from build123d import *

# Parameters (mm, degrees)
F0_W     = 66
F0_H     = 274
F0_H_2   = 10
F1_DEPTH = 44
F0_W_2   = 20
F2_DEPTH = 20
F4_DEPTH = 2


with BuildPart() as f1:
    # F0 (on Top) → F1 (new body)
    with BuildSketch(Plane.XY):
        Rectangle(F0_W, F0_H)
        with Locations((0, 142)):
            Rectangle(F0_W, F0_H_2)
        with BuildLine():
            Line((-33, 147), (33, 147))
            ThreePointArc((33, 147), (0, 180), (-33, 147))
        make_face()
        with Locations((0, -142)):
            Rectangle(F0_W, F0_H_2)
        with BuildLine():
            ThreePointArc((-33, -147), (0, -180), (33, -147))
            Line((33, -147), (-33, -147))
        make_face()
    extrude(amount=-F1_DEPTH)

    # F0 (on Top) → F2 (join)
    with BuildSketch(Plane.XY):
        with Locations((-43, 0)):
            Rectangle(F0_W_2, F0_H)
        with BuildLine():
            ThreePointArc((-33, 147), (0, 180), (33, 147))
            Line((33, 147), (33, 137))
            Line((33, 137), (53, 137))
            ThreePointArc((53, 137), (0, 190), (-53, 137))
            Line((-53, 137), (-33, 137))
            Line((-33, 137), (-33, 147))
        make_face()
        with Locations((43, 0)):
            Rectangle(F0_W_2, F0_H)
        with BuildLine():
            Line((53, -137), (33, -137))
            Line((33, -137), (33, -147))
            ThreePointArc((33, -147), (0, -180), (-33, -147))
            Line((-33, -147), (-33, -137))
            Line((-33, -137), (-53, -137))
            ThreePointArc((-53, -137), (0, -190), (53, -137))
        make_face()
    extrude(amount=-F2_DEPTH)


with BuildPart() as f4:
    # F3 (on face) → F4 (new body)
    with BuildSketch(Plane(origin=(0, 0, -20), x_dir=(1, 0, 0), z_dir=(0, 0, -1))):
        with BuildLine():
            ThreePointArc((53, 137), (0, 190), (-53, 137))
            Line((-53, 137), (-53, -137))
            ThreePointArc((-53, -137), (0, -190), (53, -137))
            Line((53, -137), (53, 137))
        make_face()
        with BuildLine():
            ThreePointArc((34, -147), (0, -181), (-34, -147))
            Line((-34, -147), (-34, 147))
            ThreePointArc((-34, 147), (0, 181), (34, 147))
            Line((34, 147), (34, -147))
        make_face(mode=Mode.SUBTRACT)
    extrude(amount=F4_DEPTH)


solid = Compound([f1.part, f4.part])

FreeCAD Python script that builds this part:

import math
import FreeCAD as App
import Part
import Sketcher

V = App.Vector
Q = App.Units.Quantity

doc = App.newDocument("Part")
body = doc.addObject("PartDesign::Body", "Body")

sketch1 = doc.addObject("Sketcher::SketchObject", "Sketch")
body.addObject(sketch1)
sketch1.AttachmentSupport = (doc.XY_Plane, [""])
sketch1.MapMode = "FlatFace"
sketch1.addGeometry([
    Part.ArcOfCircle(Part.Circle(V(0, 147, 0), V(0, 0, 1), 33), math.radians(0), math.radians(180)),
    Part.LineSegment(V(-33, 147, 0), V(-33, -147, 0)),
    Part.ArcOfCircle(Part.Circle(V(0, -147, 0), V(0, 0, 1), 33), math.radians(180), math.radians(360)),
    Part.LineSegment(V(33, -147, 0), V(33, 147, 0)),
], False)
sketch1.addConstraint([
    Sketcher.Constraint("Tangent", 0, 2, 1, 1),
    Sketcher.Constraint("Tangent", 1, 2, 2, 1),
    Sketcher.Constraint("Tangent", 2, 2, 3, 1),
    Sketcher.Constraint("Tangent", 3, 2, 0, 1),
    Sketcher.Constraint("Vertical", 1),
    Sketcher.Constraint("Vertical", 3),
    Sketcher.Constraint("Symmetric", 0, 3, 2, 3, -1, 1),
    Sketcher.Constraint("Radius", 0, Q("33 mm")),
    Sketcher.Constraint("DistanceY", 1, 2, 1, 1, Q("294 mm")),
])
pad1 = doc.addObject("PartDesign::Pad", "Pad")
body.addObject(pad1)
pad1.Profile = sketch1
pad1.Length = 44
pad1.Reversed = True

sketch2 = doc.addObject("Sketcher::SketchObject", "Sketch001")
body.addObject(sketch2)
sketch2.AttachmentSupport = (doc.XY_Plane, [""])
sketch2.MapMode = "FlatFace"
sketch2.addGeometry([
    Part.LineSegment(V(-53, 137, 0), V(-53, -137, 0)),
    Part.ArcOfCircle(Part.Circle(V(0, -137, 0), V(0, 0, 1), 53), math.radians(180), math.radians(360)),
    Part.LineSegment(V(53, -137, 0), V(53, 137, 0)),
    Part.ArcOfCircle(Part.Circle(V(0, 137, 0), V(0, 0, 1), 53), math.radians(0), math.radians(180)),
    Part.ArcOfCircle(Part.Circle(V(0, 147, 0), V(0, 0, 1), 33), math.radians(0), math.radians(180)),
    Part.LineSegment(V(33, 147, 0), V(33, -147, 0)),
    Part.ArcOfCircle(Part.Circle(V(0, -147, 0), V(0, 0, 1), 33), math.radians(180), math.radians(360)),
    Part.LineSegment(V(-33, -147, 0), V(-33, 147, 0)),
], False)
sketch2.addConstraint([
    Sketcher.Constraint("Tangent", 0, 2, 1, 1),
    Sketcher.Constraint("Tangent", 1, 2, 2, 1),
    Sketcher.Constraint("Tangent", 2, 2, 3, 1),
    Sketcher.Constraint("Tangent", 3, 2, 0, 1),
    Sketcher.Constraint("Tangent", 4, 1, 5, 1),
    Sketcher.Constraint("Tangent", 5, 2, 6, 2),
    Sketcher.Constraint("Tangent", 6, 1, 7, 1),
    Sketcher.Constraint("Tangent", 7, 2, 4, 2),
    Sketcher.Constraint("Vertical", 0),
    Sketcher.Constraint("Vertical", 2),
    Sketcher.Constraint("Vertical", 5),
    Sketcher.Constraint("Vertical", 7),
    Sketcher.Constraint("Symmetric", 1, 3, 3, 3, -1, 1),
    Sketcher.Constraint("Symmetric", 4, 3, 6, 3, -1, 1),
    Sketcher.Constraint("Radius", 1, Q("53 mm")),
    Sketcher.Constraint("Radius", 4, Q("33 mm")),
    Sketcher.Constraint("DistanceY", 0, 2, 0, 1, Q("274 mm")),
    Sketcher.Constraint("DistanceY", 5, 2, 5, 1, Q("294 mm")),
])
pad2 = doc.addObject("PartDesign::Pad", "Pad001")
body.addObject(pad2)
pad2.Profile = sketch2
pad2.Length = 20
pad2.Reversed = True
body2 = doc.addObject("PartDesign::Body", "Body001")

sketch3 = doc.addObject("Sketcher::SketchObject", "Sketch002")
body2.addObject(sketch3)
sketch3.AttachmentSupport = (doc.getObject("XY_Plane001"), [""])
sketch3.MapMode = "FlatFace"
sketch3.AttachmentOffset = App.Placement(V(0, 0, -20), App.Rotation())
sketch3.addGeometry([
    Part.ArcOfCircle(Part.Circle(V(0, -137, 0), V(0, 0, 1), 53), math.radians(180), math.radians(360)),
    Part.LineSegment(V(-53, -137, 0), V(-53, 137, 0)),
    Part.ArcOfCircle(Part.Circle(V(0, 137, 0), V(0, 0, 1), 53), math.radians(0), math.radians(180)),
    Part.LineSegment(V(53, 137, 0), V(53, -137, 0)),
    Part.LineSegment(V(34, -147, 0), V(34, 147, 0)),
    Part.ArcOfCircle(Part.Circle(V(0, 147, 0), V(0, 0, 1), 34), math.radians(0), math.radians(180)),
    Part.LineSegment(V(-34, 147, 0), V(-34, -147, 0)),
    Part.ArcOfCircle(Part.Circle(V(0, -147, 0), V(0, 0, 1), 34), math.radians(180), math.radians(360)),
], False)
sketch3.addConstraint([
    Sketcher.Constraint("Tangent", 0, 1, 1, 1),
    Sketcher.Constraint("Tangent", 1, 2, 2, 2),
    Sketcher.Constraint("Tangent", 2, 1, 3, 1),
    Sketcher.Constraint("Tangent", 3, 2, 0, 2),
    Sketcher.Constraint("Tangent", 4, 2, 5, 1),
    Sketcher.Constraint("Tangent", 5, 2, 6, 1),
    Sketcher.Constraint("Tangent", 6, 2, 7, 1),
    Sketcher.Constraint("Tangent", 7, 2, 4, 1),
    Sketcher.Constraint("Vertical", 1),
    Sketcher.Constraint("Vertical", 3),
    Sketcher.Constraint("Vertical", 4),
    Sketcher.Constraint("Vertical", 6),
    Sketcher.Constraint("Symmetric", 0, 3, 2, 3, -1, 1),
    Sketcher.Constraint("Symmetric", 5, 3, 7, 3, -1, 1),
    Sketcher.Constraint("Radius", 0, Q("53 mm")),
    Sketcher.Constraint("Radius", 5, Q("34 mm")),
    Sketcher.Constraint("DistanceY", 1, 1, 1, 2, Q("274 mm")),
    Sketcher.Constraint("DistanceY", 4, 1, 4, 2, Q("294 mm")),
])
pad3 = doc.addObject("PartDesign::Pad", "Pad002")
body2.addObject(pad3)
pad3.Profile = sketch3
pad3.Length = 2
pad3.Reversed = True

doc.recompute()
